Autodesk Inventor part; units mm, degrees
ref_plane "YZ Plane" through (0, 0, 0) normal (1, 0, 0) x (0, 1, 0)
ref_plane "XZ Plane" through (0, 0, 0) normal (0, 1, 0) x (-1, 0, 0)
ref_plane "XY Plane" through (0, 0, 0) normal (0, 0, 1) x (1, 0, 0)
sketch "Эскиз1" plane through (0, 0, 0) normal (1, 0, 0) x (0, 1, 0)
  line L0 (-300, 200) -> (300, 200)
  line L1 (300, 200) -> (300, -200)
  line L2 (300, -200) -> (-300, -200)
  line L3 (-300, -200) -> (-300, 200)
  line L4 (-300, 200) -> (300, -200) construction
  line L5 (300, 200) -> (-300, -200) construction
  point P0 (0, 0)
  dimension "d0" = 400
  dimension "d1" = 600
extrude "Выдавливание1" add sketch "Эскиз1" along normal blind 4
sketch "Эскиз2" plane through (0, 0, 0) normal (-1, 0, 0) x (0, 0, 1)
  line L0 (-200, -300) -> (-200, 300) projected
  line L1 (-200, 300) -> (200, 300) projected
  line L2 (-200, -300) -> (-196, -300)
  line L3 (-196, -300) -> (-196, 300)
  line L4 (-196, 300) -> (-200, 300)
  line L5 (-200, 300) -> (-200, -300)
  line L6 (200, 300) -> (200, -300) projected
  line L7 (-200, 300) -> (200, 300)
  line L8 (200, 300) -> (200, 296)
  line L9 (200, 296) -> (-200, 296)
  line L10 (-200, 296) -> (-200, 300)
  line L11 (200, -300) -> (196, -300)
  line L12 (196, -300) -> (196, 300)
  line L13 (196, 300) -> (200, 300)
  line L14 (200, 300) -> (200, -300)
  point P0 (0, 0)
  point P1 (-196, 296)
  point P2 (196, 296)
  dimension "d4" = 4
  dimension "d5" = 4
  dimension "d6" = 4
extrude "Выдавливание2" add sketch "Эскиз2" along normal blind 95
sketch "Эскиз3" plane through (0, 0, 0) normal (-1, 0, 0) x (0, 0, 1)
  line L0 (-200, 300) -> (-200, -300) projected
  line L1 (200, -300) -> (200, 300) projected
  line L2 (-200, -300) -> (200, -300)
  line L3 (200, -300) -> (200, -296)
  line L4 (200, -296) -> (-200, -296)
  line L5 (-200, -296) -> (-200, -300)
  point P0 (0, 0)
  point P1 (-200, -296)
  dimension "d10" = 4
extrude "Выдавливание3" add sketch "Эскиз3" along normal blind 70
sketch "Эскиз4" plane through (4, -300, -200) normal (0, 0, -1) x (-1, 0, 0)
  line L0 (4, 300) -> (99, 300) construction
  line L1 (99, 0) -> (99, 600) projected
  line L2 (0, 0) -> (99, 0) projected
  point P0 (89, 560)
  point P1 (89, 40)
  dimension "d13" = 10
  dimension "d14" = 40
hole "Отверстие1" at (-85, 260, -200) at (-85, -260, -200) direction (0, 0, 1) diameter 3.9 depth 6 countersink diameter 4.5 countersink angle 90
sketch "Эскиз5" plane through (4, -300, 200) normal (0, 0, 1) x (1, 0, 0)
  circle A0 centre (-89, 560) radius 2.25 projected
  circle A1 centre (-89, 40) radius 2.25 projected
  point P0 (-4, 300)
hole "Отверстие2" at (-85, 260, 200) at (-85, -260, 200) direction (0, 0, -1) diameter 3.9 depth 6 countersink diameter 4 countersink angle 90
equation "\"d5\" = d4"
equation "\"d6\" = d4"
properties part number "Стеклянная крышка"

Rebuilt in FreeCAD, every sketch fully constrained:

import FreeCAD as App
import Part
import Sketcher
from FreeCAD import Vector
Q = App.Units.Quantity


def add_polygon(sketch, points):
    """Adds a closed chain of lines whose ends are joined by coincident constraints."""
    first, n = sketch.GeometryCount, len(points)
    for a, b in zip(points, points[1:] + points[:1]):
        sketch.addGeometry(Part.LineSegment(App.Vector(*a, 0), App.Vector(*b, 0)), False)
    for i in range(n):
        sketch.addConstraint(Sketcher.Constraint("Coincident", first + i, 2, first + (i + 1) % n, 1))

doc = App.newDocument("Part")
body = doc.addObject("PartDesign::Body", "Body")

sketch1 = doc.addObject("Sketcher::SketchObject", "Sketch")
body.addObject(sketch1)
sketch1.AttachmentSupport = (doc.YZ_Plane, [""])
sketch1.MapMode = "FlatFace"
add_polygon(sketch1, [(300, 200), (-300, 200), (-300, -200), (300, -200)])
sketch1.addConstraint(Sketcher.Constraint("Horizontal", 0))
sketch1.addConstraint(Sketcher.Constraint("Vertical", 1))
sketch1.addConstraint(Sketcher.Constraint("Horizontal", 2))
sketch1.addConstraint(Sketcher.Constraint("Vertical", 3))
sketch1.addConstraint(Sketcher.Constraint("Symmetric", 0, 2, 2, 2, -1, 1))
sketch1.addConstraint(Sketcher.Constraint("DistanceX", 0, 2, 0, 1, Q("600 mm")))
sketch1.addConstraint(Sketcher.Constraint("DistanceY", 1, 2, 1, 1, Q("400 mm")))
pad1 = doc.addObject("PartDesign::Pad", "Pad")
body.addObject(pad1)
pad1.Profile = sketch1
pad1.Length = 4

sketch2 = doc.addObject("Sketcher::SketchObject", "Sketch001")
body.addObject(sketch2)
sketch2.AttachmentSupport = (doc.YZ_Plane, [""])
sketch2.MapMode = "FlatFace"
add_polygon(sketch2, [(-300, -200), (-300, -196), (296, -196), (296, 196), (-300, 196), (-300, 200), (300, 200), (300, -200)])
sketch2.addConstraint(Sketcher.Constraint("Vertical", 0))
sketch2.addConstraint(Sketcher.Constraint("Horizontal", 1))
sketch2.addConstraint(Sketcher.Constraint("Vertical", 2))
sketch2.addConstraint(Sketcher.Constraint("Horizontal", 3))
sketch2.addConstraint(Sketcher.Constraint("Vertical", 4))
sketch2.addConstraint(Sketcher.Constraint("Horizontal", 5))
sketch2.addConstraint(Sketcher.Constraint("Vertical", 6))
sketch2.addConstraint(Sketcher.Constraint("Horizontal", 7))
sketch2.addConstraint(Sketcher.Constraint("Symmetric", 4, 2, 6, 2, -1, 1))
sketch2.addConstraint(Sketcher.Constraint("Symmetric", 0, 2, 3, 2, -1))
sketch2.addConstraint(Sketcher.Constraint("DistanceY", 0, 1, 0, 2, Q("4 mm")))
sketch2.addConstraint(Sketcher.Constraint("DistanceX", 2, 2, 5, 2, Q("4 mm")))
sketch2.addConstraint(Sketcher.Constraint("DistanceX", 1, 1, 1, 2, Q("596 mm")))
sketch2.addConstraint(Sketcher.Constraint("DistanceY", 2, 1, 2, 2, Q("392 mm")))
pad2 = doc.addObject("PartDesign::Pad", "Pad001")
body.addObject(pad2)
pad2.Profile = sketch2
pad2.Length = 95
pad2.Reversed = True

sketch3 = doc.addObject("Sketcher::SketchObject", "Sketch002")
body.addObject(sketch3)
sketch3.AttachmentSupport = (doc.YZ_Plane, [""])
sketch3.MapMode = "FlatFace"
add_polygon(sketch3, [(-296, 200), (-296, -200), (-300, -200), (-300, 200)])
sketch3.addConstraint(Sketcher.Constraint("Vertical", 0))
sketch3.addConstraint(Sketcher.Constraint("Horizontal", 1))
sketch3.addConstraint(Sketcher.Constraint("Vertical", 2))
sketch3.addConstraint(Sketcher.Constraint("Horizontal", 3))
sketch3.addConstraint(Sketcher.Constraint("DistanceX", 1, 2, 1, 1, Q("4 mm")))
sketch3.addConstraint(Sketcher.Constraint("DistanceY", 0, 2, 0, 1, Q("400 mm")))
sketch3.addConstraint(Sketcher.Constraint("DistanceX", 0, 2, -1, 1, Q("296 mm")))
sketch3.addConstraint(Sketcher.Constraint("DistanceY", 0, 2, -1, 1, Q("200 mm")))
pad3 = doc.addObject("PartDesign::Pad", "Pad002")
body.addObject(pad3)
pad3.Profile = sketch3
pad3.Length = 70
pad3.Reversed = True

sketch4 = doc.addObject("Sketcher::SketchObject", "Sketch003")
body.addObject(sketch4)
sketch4.AttachmentSupport = (doc.XY_Plane, [""])
sketch4.MapMode = "FlatFace"
sketch4.AttachmentOffset = App.Placement(Vector(0, 0, -200), App.Rotation())
sketch4.addGeometry(Part.Circle(Vector(-85, 260, 0), Vector(0, 0, 1), 1.95), False)
sketch4.addGeometry(Part.Circle(Vector(-85, -260, 0), Vector(0, 0, 1), 1.95), False)
sketch4.addConstraint(Sketcher.Constraint("Equal", 0, 1))
sketch4.addConstraint(Sketcher.Constraint("Symmetric", 0, 3, 1, 3, -1))
sketch4.addConstraint(Sketcher.Constraint("Diameter", 0, Q("3.9 mm")))
sketch4.addConstraint(Sketcher.Constraint("DistanceX", 0, 3, -1, 1, Q("85 mm")))
sketch4.addConstraint(Sketcher.Constraint("DistanceY", -1, 1, 0, 3, Q("260 mm")))
doc.recompute()
hole = doc.addObject("PartDesign::Hole", "Hole")
body.addObject(hole)
hole.Profile = sketch4
hole.ThreadType = "None"
hole.Diameter = 3.9
hole.DepthType = "Dimension"
hole.Depth = 6
hole.DrillPoint = "Flat"
hole.HoleCutType = "Countersink"
hole.HoleCutDiameter = 4.5
hole.HoleCutCountersinkAngle = 90
hole.Reversed = True

sketch5 = doc.addObject("Sketcher::SketchObject", "Sketch004")
body.addObject(sketch5)
sketch5.AttachmentSupport = (doc.XY_Plane, [""])
sketch5.MapMode = "FlatFace"
sketch5.AttachmentOffset = App.Placement(Vector(0, 0, 200), App.Rotation())
sketch5.addGeometry(Part.Circle(Vector(-85, 260, 0), Vector(0, 0, 1), 1.95), False)
sketch5.addGeometry(Part.Circle(Vector(-85, -260, 0), Vector(0, 0, 1), 1.95), False)
sketch5.addConstraint(Sketcher.Constraint("Equal", 0, 1))
sketch5.addConstraint(Sketcher.Constraint("Symmetric", 0, 3, 1, 3, -1))
sketch5.addConstraint(Sketcher.Constraint("Diameter", 0, Q("3.9 mm")))
sketch5.addConstraint(Sketcher.Constraint("DistanceX", 0, 3, -1, 1, Q("85 mm")))
sketch5.addConstraint(Sketcher.Constraint("DistanceY", -1, 1, 0, 3, Q("260 mm")))
doc.recompute()
hole2 = doc.addObject("PartDesign::Hole", "Hole001")
body.addObject(hole2)
hole2.Profile = sketch5
hole2.ThreadType = "None"
hole2.Diameter = 3.9
hole2.DepthType = "Dimension"
hole2.Depth = 6
hole2.DrillPoint = "Flat"
hole2.HoleCutType = "Countersink"
hole2.HoleCutDiameter = 4
hole2.HoleCutCountersinkAngle = 90

doc.recompute()
